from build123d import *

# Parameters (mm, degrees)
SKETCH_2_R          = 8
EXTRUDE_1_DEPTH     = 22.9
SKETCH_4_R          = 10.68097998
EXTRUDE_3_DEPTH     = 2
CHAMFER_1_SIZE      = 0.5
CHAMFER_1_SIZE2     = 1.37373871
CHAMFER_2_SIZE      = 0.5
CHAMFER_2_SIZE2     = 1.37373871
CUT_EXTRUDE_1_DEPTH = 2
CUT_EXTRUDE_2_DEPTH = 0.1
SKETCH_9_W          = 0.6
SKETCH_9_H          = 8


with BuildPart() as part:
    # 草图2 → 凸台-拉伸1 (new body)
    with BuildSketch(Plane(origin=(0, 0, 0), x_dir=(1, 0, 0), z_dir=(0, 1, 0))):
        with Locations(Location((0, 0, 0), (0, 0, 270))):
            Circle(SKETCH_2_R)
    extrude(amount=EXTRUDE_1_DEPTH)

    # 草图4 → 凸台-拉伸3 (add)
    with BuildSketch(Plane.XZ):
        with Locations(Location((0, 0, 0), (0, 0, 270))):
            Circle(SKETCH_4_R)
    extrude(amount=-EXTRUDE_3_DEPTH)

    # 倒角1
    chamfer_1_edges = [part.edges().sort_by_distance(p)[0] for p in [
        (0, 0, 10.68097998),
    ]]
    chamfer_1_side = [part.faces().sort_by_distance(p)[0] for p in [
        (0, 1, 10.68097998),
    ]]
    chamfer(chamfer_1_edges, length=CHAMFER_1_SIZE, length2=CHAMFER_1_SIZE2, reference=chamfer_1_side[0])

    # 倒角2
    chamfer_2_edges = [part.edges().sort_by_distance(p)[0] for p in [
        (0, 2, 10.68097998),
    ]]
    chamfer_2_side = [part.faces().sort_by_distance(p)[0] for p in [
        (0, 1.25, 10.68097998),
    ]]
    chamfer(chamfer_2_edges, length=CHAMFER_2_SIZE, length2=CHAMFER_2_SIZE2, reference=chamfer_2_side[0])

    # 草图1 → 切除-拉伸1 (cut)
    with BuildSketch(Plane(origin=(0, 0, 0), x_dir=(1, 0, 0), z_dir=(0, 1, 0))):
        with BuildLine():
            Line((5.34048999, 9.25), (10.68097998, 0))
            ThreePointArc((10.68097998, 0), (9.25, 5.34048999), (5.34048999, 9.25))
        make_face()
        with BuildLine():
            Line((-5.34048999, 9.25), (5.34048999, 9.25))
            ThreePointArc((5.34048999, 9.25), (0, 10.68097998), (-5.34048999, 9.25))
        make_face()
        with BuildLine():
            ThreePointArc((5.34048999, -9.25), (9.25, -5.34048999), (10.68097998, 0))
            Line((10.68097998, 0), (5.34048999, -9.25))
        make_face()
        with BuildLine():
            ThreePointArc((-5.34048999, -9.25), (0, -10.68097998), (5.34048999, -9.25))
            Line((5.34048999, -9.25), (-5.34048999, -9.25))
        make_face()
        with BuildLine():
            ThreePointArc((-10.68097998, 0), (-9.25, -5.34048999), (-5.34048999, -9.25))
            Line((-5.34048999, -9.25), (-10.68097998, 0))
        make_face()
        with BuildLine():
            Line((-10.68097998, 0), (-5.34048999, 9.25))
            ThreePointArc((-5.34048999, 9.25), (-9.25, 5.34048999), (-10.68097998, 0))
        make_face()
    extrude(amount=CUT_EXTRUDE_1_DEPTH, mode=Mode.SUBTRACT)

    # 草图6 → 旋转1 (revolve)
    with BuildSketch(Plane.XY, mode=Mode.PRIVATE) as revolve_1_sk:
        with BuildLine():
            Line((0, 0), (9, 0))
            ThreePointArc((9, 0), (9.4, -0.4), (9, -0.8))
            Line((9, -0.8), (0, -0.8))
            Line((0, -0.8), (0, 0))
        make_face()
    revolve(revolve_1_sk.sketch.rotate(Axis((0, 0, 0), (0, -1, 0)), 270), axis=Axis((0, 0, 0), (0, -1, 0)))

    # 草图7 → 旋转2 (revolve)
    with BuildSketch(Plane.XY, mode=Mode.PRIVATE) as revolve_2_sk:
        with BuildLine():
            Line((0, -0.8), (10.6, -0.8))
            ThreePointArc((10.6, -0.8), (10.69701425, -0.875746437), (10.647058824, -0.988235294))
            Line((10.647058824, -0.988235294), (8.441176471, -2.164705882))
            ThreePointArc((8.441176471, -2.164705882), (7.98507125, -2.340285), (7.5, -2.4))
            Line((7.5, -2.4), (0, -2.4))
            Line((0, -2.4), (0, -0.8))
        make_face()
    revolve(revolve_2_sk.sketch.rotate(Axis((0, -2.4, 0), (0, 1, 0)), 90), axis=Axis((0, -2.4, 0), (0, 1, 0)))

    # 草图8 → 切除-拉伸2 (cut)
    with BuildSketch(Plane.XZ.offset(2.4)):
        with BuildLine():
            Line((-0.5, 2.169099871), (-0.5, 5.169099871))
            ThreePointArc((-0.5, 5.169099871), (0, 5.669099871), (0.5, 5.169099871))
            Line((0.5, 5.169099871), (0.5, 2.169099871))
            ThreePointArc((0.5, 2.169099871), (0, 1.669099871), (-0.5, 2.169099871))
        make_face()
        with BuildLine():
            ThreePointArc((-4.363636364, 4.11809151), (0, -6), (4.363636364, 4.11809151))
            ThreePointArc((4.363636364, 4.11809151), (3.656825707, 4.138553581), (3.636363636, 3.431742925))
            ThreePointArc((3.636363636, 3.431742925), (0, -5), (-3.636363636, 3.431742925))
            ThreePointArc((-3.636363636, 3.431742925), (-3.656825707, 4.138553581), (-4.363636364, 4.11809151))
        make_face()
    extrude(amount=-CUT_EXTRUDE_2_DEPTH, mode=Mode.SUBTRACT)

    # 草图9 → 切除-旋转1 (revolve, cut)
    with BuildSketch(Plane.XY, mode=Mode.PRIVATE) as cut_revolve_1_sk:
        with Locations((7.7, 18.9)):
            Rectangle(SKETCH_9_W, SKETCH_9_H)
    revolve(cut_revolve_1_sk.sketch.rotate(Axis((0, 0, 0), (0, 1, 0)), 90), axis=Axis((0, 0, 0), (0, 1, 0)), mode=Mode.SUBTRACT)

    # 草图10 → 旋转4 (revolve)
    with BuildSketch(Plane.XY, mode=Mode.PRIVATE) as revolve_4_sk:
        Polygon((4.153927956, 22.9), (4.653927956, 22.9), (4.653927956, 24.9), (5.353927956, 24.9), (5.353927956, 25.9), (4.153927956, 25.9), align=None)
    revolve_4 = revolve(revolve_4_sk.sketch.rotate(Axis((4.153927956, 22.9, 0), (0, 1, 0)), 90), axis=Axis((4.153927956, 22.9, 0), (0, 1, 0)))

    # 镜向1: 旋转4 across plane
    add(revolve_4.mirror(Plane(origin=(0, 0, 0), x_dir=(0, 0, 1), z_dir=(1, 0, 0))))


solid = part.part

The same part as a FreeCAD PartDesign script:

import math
import FreeCAD as App
import Part
import Sketcher
Q = App.Units.Quantity


def edges_at(feature, points):
    """Names of the edges that pass closest to the given points."""
    edges = feature.Shape.Edges
    near = lambda p: min(range(len(edges)), key=lambda i: edges[i].distToShape(Part.Vertex(*p))[0])
    return sorted({f"Edge{near(p) + 1}" for p in points})


def add_polygon(sketch, points):
    """Adds a closed chain of lines whose ends are joined by coincident constraints."""
    first, n = sketch.GeometryCount, len(points)
    for a, b in zip(points, points[1:] + points[:1]):
        sketch.addGeometry(Part.LineSegment(App.Vector(*a, 0), App.Vector(*b, 0)), False)
    for i in range(n):
        sketch.addConstraint(Sketcher.Constraint("Coincident", first + i, 2, first + (i + 1) % n, 1))

doc = App.newDocument("Part")
body = doc.addObject("PartDesign::Body", "Body")

sketch1 = body.newObject("Sketcher::SketchObject", "Sketch")
sketch1.AttachmentSupport = (doc.getObject("XZ_Plane"), [""])
sketch1.MapMode = "FlatFace"
sketch1.addGeometry(Part.Circle(App.Vector(0, 0, 0), App.Vector(0, 0, 1), 8), False)
sketch1.addConstraint(Sketcher.Constraint("Coincident", 0, 3, -1, 1))
sketch1.addConstraint(Sketcher.Constraint("Diameter", 0, Q("16 mm")))
pad1 = body.newObject("PartDesign::Pad", "Pad")
pad1.Profile = sketch1
pad1.Length = 22.9
pad1.Reversed = True

sketch2 = body.newObject("Sketcher::SketchObject", "Sketch001")
sketch2.AttachmentSupport = (doc.getObject("XZ_Plane"), [""])
sketch2.MapMode = "FlatFace"
sketch2.addGeometry(Part.Circle(App.Vector(0, 0, 0), App.Vector(0, 0, 1), 11), False)
sketch2.addConstraint(Sketcher.Constraint("Coincident", 0, 3, -1, 1))
sketch2.addConstraint(Sketcher.Constraint("Diameter", 0, Q("21.36196 mm")))
pad2 = body.newObject("PartDesign::Pad", "Pad001")
pad2.Profile = sketch2
pad2.Length = 2
pad2.Reversed = True
doc.recompute()

chamfer = body.newObject("PartDesign::Chamfer", "Chamfer")
chamfer.Base = (pad2, edges_at(pad2, [(0, 0, 10.681)]))
chamfer.ChamferType = "Two distances"
chamfer.Size = 0.5
chamfer.Size2 = 1.373739
doc.recompute()

chamfer2 = body.newObject("PartDesign::Chamfer", "Chamfer001")
chamfer2.Base = (chamfer, edges_at(chamfer, [(0, 2, 10.681)]))
chamfer2.ChamferType = "Two distances"
chamfer2.Size = 0.5
chamfer2.Size2 = 1.373739

sketch3 = body.newObject("Sketcher::SketchObject", "Sketch002")
sketch3.AttachmentSupport = (doc.getObject("XZ_Plane"), [""])
sketch3.MapMode = "FlatFace"
sketch3.addGeometry(Part.LineSegment(App.Vector(5, -9, 0), App.Vector(11, 0, 0)), False)
sketch3.addGeometry(Part.ArcOfCircle(Part.Circle(App.Vector(0, 0, 0), App.Vector(0, 0, 1), 11), math.radians(-60), math.radians(0)), False)
sketch3.addGeometry(Part.LineSegment(App.Vector(-5, -9, 0), App.Vector(5, -9, 0)), False)
sketch3.addGeometry(Part.ArcOfCircle(Part.Circle(App.Vector(0, 0, 0), App.Vector(0, 0, 1), 11), math.radians(-120), math.radians(-60)), False)
sketch3.addGeometry(Part.ArcOfCircle(Part.Circle(App.Vector(0, 0, 0), App.Vector(0, 0, 1), 11), math.radians(0), math.radians(60)), False)
sketch3.addGeometry(Part.LineSegment(App.Vector(11, 0, 0), App.Vector(5, 9, 0)), False)
sketch3.addGeometry(Part.ArcOfCircle(Part.Circle(App.Vector(0, 0, 0), App.Vector(0, 0, 1), 11), math.radians(60), math.radians(120)), False)
sketch3.addGeometry(Part.LineSegment(App.Vector(5, 9, 0), App.Vector(-5, 9, 0)), False)
sketch3.addGeometry(Part.ArcOfCircle(Part.Circle(App.Vector(0, 0, 0), App.Vector(0, 0, 1), 11), math.radians(120), math.radians(180)), False)
sketch3.addGeometry(Part.LineSegment(App.Vector(-5, 9, 0), App.Vector(-11, 0, 0)), False)
sketch3.addGeometry(Part.LineSegment(App.Vector(-11, 0, 0), App.Vector(-5, -9, 0)), False)
sketch3.addGeometry(Part.ArcOfCircle(Part.Circle(App.Vector(0, 0, 0), App.Vector(0, 0, 1), 11), math.radians(180), math.radians(240)), False)
sketch3.addConstraint(Sketcher.Constraint("Coincident", 0, 1, 1, 1))
sketch3.addConstraint(Sketcher.Constraint("Coincident", 1, 2, 0, 2))
sketch3.addConstraint(Sketcher.Constraint("Coincident", 2, 1, 3, 1))
sketch3.addConstraint(Sketcher.Constraint("Coincident", 3, 2, 2, 2))
sketch3.addConstraint(Sketcher.Constraint("Coincident", 4, 1, 5, 1))
sketch3.addConstraint(Sketcher.Constraint("Coincident", 5, 2, 4, 2))
sketch3.addConstraint(Sketcher.Constraint("Coincident", 6, 1, 7, 1))
sketch3.addConstraint(Sketcher.Constraint("Coincident", 7, 2, 6, 2))
sketch3.addConstraint(Sketcher.Constraint("Coincident", 8, 1, 9, 1))
sketch3.addConstraint(Sketcher.Constraint("Coincident", 9, 2, 8, 2))
sketch3.addConstraint(Sketcher.Constraint("Coincident", 10, 1, 11, 1))
sketch3.addConstraint(Sketcher.Constraint("Coincident", 11, 2, 10, 2))
sketch3.addConstraint(Sketcher.Constraint("Horizontal", 2))
sketch3.addConstraint(Sketcher.Constraint("Horizontal", 7))
sketch3.addConstraint(Sketcher.Constraint("Coincident", 1, 3, -1, 1))
sketch3.addConstraint(Sketcher.Constraint("Coincident", 3, 3, -1, 1))
sketch3.addConstraint(Sketcher.Constraint("Coincident", 4, 3, -1, 1))
sketch3.addConstraint(Sketcher.Constraint("Coincident", 6, 3, -1, 1))
sketch3.addConstraint(Sketcher.Constraint("Coincident", 8, 3, -1, 1))
sketch3.addConstraint(Sketcher.Constraint("Coincident", 11, 3, -1, 1))
sketch3.addConstraint(Sketcher.Constraint("Coincident", 3, 2, 0, 1))
sketch3.addConstraint(Sketcher.Constraint("Coincident", 4, 1, 1, 2))
sketch3.addConstraint(Sketcher.Constraint("Coincident", 6, 1, 5, 2))
sketch3.addConstraint(Sketcher.Constraint("Coincident", 8, 1, 7, 2))
sketch3.addConstraint(Sketcher.Constraint("Coincident", 10, 1, 9, 2))
sketch3.addConstraint(Sketcher.Constraint("PointOnObject", 1, 2, -1))
sketch3.addConstraint(Sketcher.Constraint("PointOnObject", 9, 2, -1))
sketch3.addConstraint(Sketcher.Constraint("Parallel", 0, 9))
sketch3.addConstraint(Sketcher.Constraint("Parallel", 5, 10))
sketch3.addConstraint(Sketcher.Constraint("Angle", 0, Q("60 deg")))
sketch3.addConstraint(Sketcher.Constraint("DistanceY", 0, 1, -1, 1, Q("9.25 mm")))
pocket1 = body.newObject("PartDesign::Pocket", "Pocket")
pocket1.Profile = sketch3
pocket1.Length = 2

sketch4 = body.newObject("Sketcher::SketchObject", "Sketch003")
sketch4.AttachmentSupport = (doc.getObject("XY_Plane"), [""])
sketch4.MapMode = "FlatFace"
sketch4.addGeometry(Part.LineSegment(App.Vector(9, 0, 0), App.Vector(0, 0, 0)), False)
sketch4.addGeometry(Part.LineSegment(App.Vector(0, 0, 0), App.Vector(0, -0.8, 0)), False)
sketch4.addGeometry(Part.LineSegment(App.Vector(0, -0.8, 0), App.Vector(9, -0.8, 0)), False)
sketch4.addGeometry(Part.ArcOfCircle(Part.Circle(App.Vector(9, -0.4, 0), App.Vector(0, 0, 1), 0.4), math.radians(-90), math.radians(90)), False)
sketch4.addConstraint(Sketcher.Constraint("Coincident", 0, 2, 1, 1))
sketch4.addConstraint(Sketcher.Constraint("Coincident", 1, 2, 2, 1))
sketch4.addConstraint(Sketcher.Constraint("Tangent", 2, 2, 3, 1))
sketch4.addConstraint(Sketcher.Constraint("Tangent", 3, 2, 0, 1))
sketch4.addConstraint(Sketcher.Constraint("Horizontal", 0))
sketch4.addConstraint(Sketcher.Constraint("Vertical", 1))
sketch4.addConstraint(Sketcher.Constraint("Horizontal", 2))
sketch4.addConstraint(Sketcher.Constraint("Coincident", 0, 2, -1, 1))
sketch4.addConstraint(Sketcher.Constraint("Radius", 3, Q("0.4 mm")))
sketch4.addConstraint(Sketcher.Constraint("DistanceX", 0, 2, 0, 1, Q("9 mm")))
revolution = body.newObject("PartDesign::Revolution", "Revolution")
revolution.Profile = sketch4
revolution.ReferenceAxis = (sketch4, ["V_Axis"])
revolution.Angle = 360

sketch5 = body.newObject("Sketcher::SketchObject", "Sketch004")
sketch5.AttachmentSupport = (doc.getObject("XY_Plane"), [""])
sketch5.MapMode = "FlatFace"
sketch5.addGeometry(Part.LineSegment(App.Vector(10.6, -0.8, 0), App.Vector(0, -0.8, 0)), False)
sketch5.addGeometry(Part.LineSegment(App.Vector(0, -0.8, 0), App.Vector(0, -2.4, 0)), False)
sketch5.addGeometry(Part.LineSegment(App.Vector(0, -2.4, 0), App.Vector(7.5, -2.4, 0)), False)
sketch5.addGeometry(Part.ArcOfCircle(Part.Circle(App.Vector(7.5, -0.4, 0), App.Vector(0, 0, 1), 2), math.radians(-90), math.radians(-62)), False)
sketch5.addGeometry(Part.LineSegment(App.Vector(8.44, -2.16, 0), App.Vector(10.65, -0.99, 0)), False)
sketch5.addGeometry(Part.ArcOfCircle(Part.Circle(App.Vector(10.6, -0.9, 0), App.Vector(0, 0, 1), 0.1), math.radians(-62), math.radians(90)), False)
sketch5.addConstraint(Sketcher.Constraint("Coincident", 0, 2, 1, 1))
sketch5.addConstraint(Sketcher.Constraint("Coincident", 1, 2, 2, 1))
sketch5.addConstraint(Sketcher.Constraint("Tangent", 2, 2, 3, 1))
sketch5.addConstraint(Sketcher.Constraint("Tangent", 3, 2, 4, 1))
sketch5.addConstraint(Sketcher.Constraint("Tangent", 4, 2, 5, 1))
sketch5.addConstraint(Sketcher.Constraint("Tangent", 5, 2, 0, 1))
sketch5.addConstraint(Sketcher.Constraint("Horizontal", 0))
sketch5.addConstraint(Sketcher.Constraint("Vertical", 1))
sketch5.addConstraint(Sketcher.Constraint("Horizontal", 2))
sketch5.addConstraint(Sketcher.Constraint("PointOnObject", 0, 2, -2))
sketch5.addConstraint(Sketcher.Constraint("Radius", 3, Q("2 mm")))
sketch5.addConstraint(Sketcher.Constraint("Radius", 5, Q("0.1 mm")))
sketch5.addConstraint(Sketcher.Constraint("DistanceX", 0, 2, 0, 1, Q("10.6 mm")))
sketch5.addConstraint(Sketcher.Constraint("DistanceX", 2, 1, 2, 2, Q("7.5 mm")))
sketch5.addConstraint(Sketcher.Constraint("DistanceY", 1, 2, 1, 1, Q("1.6 mm")))
sketch5.addConstraint(Sketcher.Constraint("DistanceY", 3, 3, -1, 1, Q("0.4 mm")))
revolution2 = body.newObject("PartDesign::Revolution", "Revolution001")
revolution2.Profile = sketch5
revolution2.ReferenceAxis = (sketch5, ["V_Axis"])
revolution2.Angle = 360

sketch6 = body.newObject("Sketcher::SketchObject", "Sketch005")
sketch6.AttachmentSupport = (doc.getObject("XZ_Plane"), [""])
sketch6.MapMode = "FlatFace"
sketch6.AttachmentOffset = App.Placement(App.Vector(0, 0, 2.4), App.Rotation())
sketch6.addGeometry(Part.LineSegment(App.Vector(-0.5, 5.2, 0), App.Vector(-0.5, 2.2, 0)), False)
sketch6.addGeometry(Part.ArcOfCircle(Part.Circle(App.Vector(0, 2.2, 0), App.Vector(0, 0, 1), 0.5), math.radians(180), math.radians(360)), False)
sketch6.addGeometry(Part.LineSegment(App.Vector(0.5, 2.2, 0), App.Vector(0.5, 5.2, 0)), False)
sketch6.addGeometry(Part.ArcOfCircle(Part.Circle(App.Vector(0, 5.2, 0), App.Vector(0, 0, 1), 0.5), math.radians(0), math.radians(180)), False)
sketch6.addGeometry(Part.ArcOfCircle(Part.Circle(App.Vector(0, 0, 0), App.Vector(0, 0, 1), 6), math.radians(137), math.radians(403)), False)
sketch6.addGeometry(Part.ArcOfCircle(Part.Circle(App.Vector(4, 3.8, 0), App.Vector(0, 0, 1), 0.5), math.radians(43), math.radians(223)), False)
sketch6.addGeometry(Part.ArcOfCircle(Part.Circle(App.Vector(0, 0, 0), App.Vector(0, 0, 1), 5), math.radians(137), math.radians(403)), False)
sketch6.addGeometry(Part.ArcOfCircle(Part.Circle(App.Vector(-4, 3.8, 0), App.Vector(0, 0, 1), 0.5), math.radians(-43), math.radians(137)), False)
sketch6.addConstraint(Sketcher.Constraint("Tangent", 0, 2, 1, 1))
sketch6.addConstraint(Sketcher.Constraint("Tangent", 1, 2, 2, 1))
sketch6.addConstraint(Sketcher.Constraint("Tangent", 2, 2, 3, 1))
sketch6.addConstraint(Sketcher.Constraint("Tangent", 3, 2, 0, 1))
sketch6.addConstraint(Sketcher.Constraint("Tangent", 4, 2, 5, 1))
sketch6.addConstraint(Sketcher.Constraint("Tangent", 5, 2, 6, 2))
sketch6.addConstraint(Sketcher.Constraint("Tangent", 6, 1, 7, 1))
sketch6.addConstraint(Sketcher.Constraint("Tangent", 7, 2, 4, 1))
sketch6.addConstraint(Sketcher.Constraint("Vertical", 0))
sketch6.addConstraint(Sketcher.Constraint("Vertical", 2))
sketch6.addConstraint(Sketcher.Constraint("Coincident", 4, 3, -1, 1))
sketch6.addConstraint(Sketcher.Constraint("Coincident", 6, 3, -1, 1))
sketch6.addConstraint(Sketcher.Constraint("Equal", 3, 5))
sketch6.addConstraint(Sketcher.Constraint("PointOnObject", 1, 3, -2))
sketch6.addConstraint(Sketcher.Constraint("Horizontal", 5, 3, 7, 3))
sketch6.addConstraint(Sketcher.Constraint("Radius", 4, Q("6 mm")))
sketch6.addConstraint(Sketcher.Constraint("Radius", 6, Q("5 mm")))
sketch6.addConstraint(Sketcher.Constraint("DistanceY", 0, 2, 0, 1, Q("3 mm")))
sketch6.addConstraint(Sketcher.Constraint("DistanceX", -1, 1, 5, 3, Q("4 mm")))
sketch6.addConstraint(Sketcher.Constraint("DistanceY", -1, 1, 1, 3, Q("2.1691 mm")))
pocket2 = body.newObject("PartDesign::Pocket", "Pocket001")
pocket2.Profile = sketch6
pocket2.Length = 0.1

sketch7 = body.newObject("Sketcher::SketchObject", "Sketch006")
sketch7.AttachmentSupport = (doc.getObject("XY_Plane"), [""])
sketch7.MapMode = "FlatFace"
add_polygon(sketch7, [(7.4, 22.9), (7.4, 14.9), (8, 14.9), (8, 22.9)])
sketch7.addConstraint(Sketcher.Constraint("Vertical", 0))
sketch7.addConstraint(Sketcher.Constraint("Horizontal", 1))
sketch7.addConstraint(Sketcher.Constraint("Vertical", 2))
sketch7.addConstraint(Sketcher.Constraint("Horizontal", 3))
sketch7.addConstraint(Sketcher.Constraint("DistanceY", 0, 2, 0, 1, Q("8 mm")))
sketch7.addConstraint(Sketcher.Constraint("DistanceX", 1, 1, 1, 2, Q("0.6 mm")))
sketch7.addConstraint(Sketcher.Constraint("DistanceX", -1, 1, 1, 2, Q("8 mm")))
sketch7.addConstraint(Sketcher.Constraint("DistanceY", -1, 1, 0, 2, Q("14.9 mm")))
groove = body.newObject("PartDesign::Groove", "Groove")
groove.Profile = sketch7
groove.ReferenceAxis = (sketch7, ["V_Axis"])
groove.Angle = 360

sketch8 = body.newObject("Sketcher::SketchObject", "Sketch007")
sketch8.AttachmentSupport = (doc.getObject("XY_Plane"), [""])
sketch8.MapMode = "FlatFace"
add_polygon(sketch8, [(4.2, 22.9), (4.7, 22.9), (4.7, 24.9), (5.4, 24.9), (5.4, 25.9), (4.2, 25.9)])
sketch8.addGeometry(Part.LineSegment(App.Vector(4.2, 22.9, 0), App.Vector(4.2, 25.9, 0)), True)
sketch8.addConstraint(Sketcher.Constraint("Horizontal", 0))
sketch8.addConstraint(Sketcher.Constraint("Vertical", 1))
sketch8.addConstraint(Sketcher.Constraint("Horizontal", 2))
sketch8.addConstraint(Sketcher.Constraint("Vertical", 3))
sketch8.addConstraint(Sketcher.Constraint("Horizontal", 4))
sketch8.addConstraint(Sketcher.Constraint("Vertical", 5))
sketch8.addConstraint(Sketcher.Constraint("Vertical", 6))
sketch8.addConstraint(Sketcher.Constraint("Coincident", 6, 1, 5, 2))
sketch8.addConstraint(Sketcher.Constraint("Horizontal", 3, 2, 6, 2))
sketch8.addConstraint(Sketcher.Constraint("DistanceY", 1, 1, 1, 2, Q("2 mm")))
sketch8.addConstraint(Sketcher.Constraint("DistanceY", 3, 1, 3, 2, Q("1 mm")))
sketch8.addConstraint(Sketcher.Constraint("DistanceX", 0, 1, 0, 2, Q("0.5 mm")))
sketch8.addConstraint(Sketcher.Constraint("DistanceX", 2, 1, 2, 2, Q("0.7 mm")))
sketch8.addConstraint(Sketcher.Constraint("DistanceY", -1, 1, 0, 2, Q("22.9 mm")))
sketch8.addConstraint(Sketcher.Constraint("DistanceX", -1, 1, 0, 2, Q("4.653928 mm")))
revolution3 = body.newObject("PartDesign::Revolution", "Revolution002")
revolution3.Profile = sketch8
revolution3.ReferenceAxis = (sketch8, ["Axis0"])
revolution3.Angle = 360
doc.recompute()

mirrored = body.newObject("PartDesign::Mirrored", "Mirrored")
mirrored.Originals = [revolution3]
mirrored.MirrorPlane = (doc.getObject("YZ_Plane"), [""])
body.Tip = mirrored

doc.recompute()
